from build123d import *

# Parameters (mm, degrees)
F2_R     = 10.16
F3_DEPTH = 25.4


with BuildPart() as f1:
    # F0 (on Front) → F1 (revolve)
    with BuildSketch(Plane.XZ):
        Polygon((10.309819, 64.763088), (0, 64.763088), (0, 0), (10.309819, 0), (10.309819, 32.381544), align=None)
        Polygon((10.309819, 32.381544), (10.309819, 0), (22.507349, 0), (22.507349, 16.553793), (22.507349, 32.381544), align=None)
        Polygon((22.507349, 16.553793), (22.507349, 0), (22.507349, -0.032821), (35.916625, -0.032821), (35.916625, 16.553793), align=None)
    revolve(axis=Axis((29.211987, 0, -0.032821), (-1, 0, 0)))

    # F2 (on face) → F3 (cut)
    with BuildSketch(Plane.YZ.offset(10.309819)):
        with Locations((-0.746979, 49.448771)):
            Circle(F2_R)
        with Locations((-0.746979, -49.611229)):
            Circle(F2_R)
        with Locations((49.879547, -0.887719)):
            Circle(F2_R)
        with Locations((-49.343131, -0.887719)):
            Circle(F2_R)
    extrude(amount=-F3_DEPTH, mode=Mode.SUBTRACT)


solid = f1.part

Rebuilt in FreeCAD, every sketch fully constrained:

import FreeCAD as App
import Part
import Sketcher
Q = App.Units.Quantity


def add_polygon(sketch, points):
    """Adds a closed chain of lines whose ends are joined by coincident constraints."""
    first, n = sketch.GeometryCount, len(points)
    for a, b in zip(points, points[1:] + points[:1]):
        sketch.addGeometry(Part.LineSegment(App.Vector(*a, 0), App.Vector(*b, 0)), False)
    for i in range(n):
        sketch.addConstraint(Sketcher.Constraint("Coincident", first + i, 2, first + (i + 1) % n, 1))

doc = App.newDocument("Part")
params = doc.addObject("Spreadsheet::Sheet", "Params")
for row, (alias, value) in enumerate([
    ("revolution_angle", "360 deg"),
    ("sketch2_diameter", "0.8 in"),
    ("pocket1_length", "1 in"),
], start=1):
    params.set(f"A{row}", alias)
    params.set(f"B{row}", "=" + value)
    params.setAlias(f"B{row}", alias)

body = doc.addObject("PartDesign::Body", "Body")

sketch1 = doc.addObject("Sketcher::SketchObject", "Sketch")
body.addObject(sketch1)
sketch1.AttachmentSupport = (doc.XZ_Plane, [""])
sketch1.MapMode = "FlatFace"
add_polygon(sketch1, [(10.31, 64.763), (0, 64.763), (0, 0), (22.507, 0), (22.507, -0.033), (35.917, -0.033), (35.917, 16.554), (22.507, 16.554), (22.507, 32.382), (10.31, 32.382)])
sketch1.addGeometry(Part.LineSegment(App.Vector(35.917, -0.033, 0), App.Vector(0, -0.033, 0)), True)
sketch1.addConstraint([
    Sketcher.Constraint("Horizontal", 0),
    Sketcher.Constraint("Vertical", 1),
    Sketcher.Constraint("Horizontal", 2),
    Sketcher.Constraint("Vertical", 3),
    Sketcher.Constraint("Horizontal", 4),
    Sketcher.Constraint("Vertical", 5),
    Sketcher.Constraint("Horizontal", 6),
    Sketcher.Constraint("Vertical", 7),
    Sketcher.Constraint("Horizontal", 8),
    Sketcher.Constraint("Vertical", 9),
    Sketcher.Constraint("Horizontal", 10),
    Sketcher.Constraint("Coincident", 1, 2, -1, 1),
    Sketcher.Constraint("Coincident", 10, 1, 4, 2),
    Sketcher.Constraint("PointOnObject", 10, 2, -2),
    Sketcher.Constraint("Vertical", 3, 2, 6, 2),
    Sketcher.Constraint("DistanceX", 0, 2, 0, 1, 10.309819),
    Sketcher.Constraint("DistanceX", 2, 1, 2, 2, 22.507349),
    Sketcher.Constraint("DistanceY", 3, 2, 3, 1, 0.032821),
    Sketcher.Constraint("DistanceY", 7, 1, 7, 2, 15.827751),
    Sketcher.Constraint("DistanceX", 4, 1, 4, 2, 13.409276),
    Sketcher.Constraint("DistanceY", 1, 2, 1, 1, 64.763088),
    Sketcher.Constraint("DistanceY", 5, 1, 5, 2, 16.586614),
])
revolution = doc.addObject("PartDesign::Revolution", "Revolution")
body.addObject(revolution)
revolution.Profile = sketch1
revolution.ReferenceAxis = (sketch1, ["Axis0"])
revolution.setExpression("Angle", "Params.revolution_angle")

sketch2 = doc.addObject("Sketcher::SketchObject", "Sketch001")
body.addObject(sketch2)
sketch2.AttachmentSupport = (doc.YZ_Plane, [""])
sketch2.MapMode = "FlatFace"
sketch2.AttachmentOffset = App.Placement(App.Vector(0, 0, 10.309819), App.Rotation())
sketch2.addGeometry([
    Part.Circle(App.Vector(-1, 49, 0), App.Vector(0, 0, 1), 10),
    Part.Circle(App.Vector(-1, -50, 0), App.Vector(0, 0, 1), 10),
    Part.Circle(App.Vector(50, -1, 0), App.Vector(0, 0, 1), 10),
    Part.Circle(App.Vector(-49, -1, 0), App.Vector(0, 0, 1), 10),
], False)
sketch2.addConstraint([
    Sketcher.Constraint("Equal", 0, 1),
    Sketcher.Constraint("Equal", 1, 2),
    Sketcher.Constraint("Equal", 2, 3),
    Sketcher.Constraint("Horizontal", 2, 3, 3, 3),
    Sketcher.Constraint("Vertical", 0, 3, 1, 3),
    Sketcher.Constraint("Diameter", 0, Q("0.8 in")),
    Sketcher.Constraint("DistanceY", 1, 3, 0, 3, Q("3.9 in")),
    Sketcher.Constraint("DistanceX", 0, 3, -1, 1, 0.746979),
    Sketcher.Constraint("DistanceY", -1, 1, 0, 3, 49.448771),
    Sketcher.Constraint("DistanceY", 2, 3, -1, 1, 0.887719),
    Sketcher.Constraint("DistanceX", 3, 3, -1, 1, 49.343131),
    Sketcher.Constraint("DistanceX", 3, 3, 2, 3, 99.222678),
])
sketch2.setExpression("Constraints[5]", "Params.sketch2_diameter")
pocket1 = doc.addObject("PartDesign::Pocket", "Pocket")
body.addObject(pocket1)
pocket1.Profile = sketch2
pocket1.setExpression("Length", "Params.pocket1_length")

doc.recompute()
